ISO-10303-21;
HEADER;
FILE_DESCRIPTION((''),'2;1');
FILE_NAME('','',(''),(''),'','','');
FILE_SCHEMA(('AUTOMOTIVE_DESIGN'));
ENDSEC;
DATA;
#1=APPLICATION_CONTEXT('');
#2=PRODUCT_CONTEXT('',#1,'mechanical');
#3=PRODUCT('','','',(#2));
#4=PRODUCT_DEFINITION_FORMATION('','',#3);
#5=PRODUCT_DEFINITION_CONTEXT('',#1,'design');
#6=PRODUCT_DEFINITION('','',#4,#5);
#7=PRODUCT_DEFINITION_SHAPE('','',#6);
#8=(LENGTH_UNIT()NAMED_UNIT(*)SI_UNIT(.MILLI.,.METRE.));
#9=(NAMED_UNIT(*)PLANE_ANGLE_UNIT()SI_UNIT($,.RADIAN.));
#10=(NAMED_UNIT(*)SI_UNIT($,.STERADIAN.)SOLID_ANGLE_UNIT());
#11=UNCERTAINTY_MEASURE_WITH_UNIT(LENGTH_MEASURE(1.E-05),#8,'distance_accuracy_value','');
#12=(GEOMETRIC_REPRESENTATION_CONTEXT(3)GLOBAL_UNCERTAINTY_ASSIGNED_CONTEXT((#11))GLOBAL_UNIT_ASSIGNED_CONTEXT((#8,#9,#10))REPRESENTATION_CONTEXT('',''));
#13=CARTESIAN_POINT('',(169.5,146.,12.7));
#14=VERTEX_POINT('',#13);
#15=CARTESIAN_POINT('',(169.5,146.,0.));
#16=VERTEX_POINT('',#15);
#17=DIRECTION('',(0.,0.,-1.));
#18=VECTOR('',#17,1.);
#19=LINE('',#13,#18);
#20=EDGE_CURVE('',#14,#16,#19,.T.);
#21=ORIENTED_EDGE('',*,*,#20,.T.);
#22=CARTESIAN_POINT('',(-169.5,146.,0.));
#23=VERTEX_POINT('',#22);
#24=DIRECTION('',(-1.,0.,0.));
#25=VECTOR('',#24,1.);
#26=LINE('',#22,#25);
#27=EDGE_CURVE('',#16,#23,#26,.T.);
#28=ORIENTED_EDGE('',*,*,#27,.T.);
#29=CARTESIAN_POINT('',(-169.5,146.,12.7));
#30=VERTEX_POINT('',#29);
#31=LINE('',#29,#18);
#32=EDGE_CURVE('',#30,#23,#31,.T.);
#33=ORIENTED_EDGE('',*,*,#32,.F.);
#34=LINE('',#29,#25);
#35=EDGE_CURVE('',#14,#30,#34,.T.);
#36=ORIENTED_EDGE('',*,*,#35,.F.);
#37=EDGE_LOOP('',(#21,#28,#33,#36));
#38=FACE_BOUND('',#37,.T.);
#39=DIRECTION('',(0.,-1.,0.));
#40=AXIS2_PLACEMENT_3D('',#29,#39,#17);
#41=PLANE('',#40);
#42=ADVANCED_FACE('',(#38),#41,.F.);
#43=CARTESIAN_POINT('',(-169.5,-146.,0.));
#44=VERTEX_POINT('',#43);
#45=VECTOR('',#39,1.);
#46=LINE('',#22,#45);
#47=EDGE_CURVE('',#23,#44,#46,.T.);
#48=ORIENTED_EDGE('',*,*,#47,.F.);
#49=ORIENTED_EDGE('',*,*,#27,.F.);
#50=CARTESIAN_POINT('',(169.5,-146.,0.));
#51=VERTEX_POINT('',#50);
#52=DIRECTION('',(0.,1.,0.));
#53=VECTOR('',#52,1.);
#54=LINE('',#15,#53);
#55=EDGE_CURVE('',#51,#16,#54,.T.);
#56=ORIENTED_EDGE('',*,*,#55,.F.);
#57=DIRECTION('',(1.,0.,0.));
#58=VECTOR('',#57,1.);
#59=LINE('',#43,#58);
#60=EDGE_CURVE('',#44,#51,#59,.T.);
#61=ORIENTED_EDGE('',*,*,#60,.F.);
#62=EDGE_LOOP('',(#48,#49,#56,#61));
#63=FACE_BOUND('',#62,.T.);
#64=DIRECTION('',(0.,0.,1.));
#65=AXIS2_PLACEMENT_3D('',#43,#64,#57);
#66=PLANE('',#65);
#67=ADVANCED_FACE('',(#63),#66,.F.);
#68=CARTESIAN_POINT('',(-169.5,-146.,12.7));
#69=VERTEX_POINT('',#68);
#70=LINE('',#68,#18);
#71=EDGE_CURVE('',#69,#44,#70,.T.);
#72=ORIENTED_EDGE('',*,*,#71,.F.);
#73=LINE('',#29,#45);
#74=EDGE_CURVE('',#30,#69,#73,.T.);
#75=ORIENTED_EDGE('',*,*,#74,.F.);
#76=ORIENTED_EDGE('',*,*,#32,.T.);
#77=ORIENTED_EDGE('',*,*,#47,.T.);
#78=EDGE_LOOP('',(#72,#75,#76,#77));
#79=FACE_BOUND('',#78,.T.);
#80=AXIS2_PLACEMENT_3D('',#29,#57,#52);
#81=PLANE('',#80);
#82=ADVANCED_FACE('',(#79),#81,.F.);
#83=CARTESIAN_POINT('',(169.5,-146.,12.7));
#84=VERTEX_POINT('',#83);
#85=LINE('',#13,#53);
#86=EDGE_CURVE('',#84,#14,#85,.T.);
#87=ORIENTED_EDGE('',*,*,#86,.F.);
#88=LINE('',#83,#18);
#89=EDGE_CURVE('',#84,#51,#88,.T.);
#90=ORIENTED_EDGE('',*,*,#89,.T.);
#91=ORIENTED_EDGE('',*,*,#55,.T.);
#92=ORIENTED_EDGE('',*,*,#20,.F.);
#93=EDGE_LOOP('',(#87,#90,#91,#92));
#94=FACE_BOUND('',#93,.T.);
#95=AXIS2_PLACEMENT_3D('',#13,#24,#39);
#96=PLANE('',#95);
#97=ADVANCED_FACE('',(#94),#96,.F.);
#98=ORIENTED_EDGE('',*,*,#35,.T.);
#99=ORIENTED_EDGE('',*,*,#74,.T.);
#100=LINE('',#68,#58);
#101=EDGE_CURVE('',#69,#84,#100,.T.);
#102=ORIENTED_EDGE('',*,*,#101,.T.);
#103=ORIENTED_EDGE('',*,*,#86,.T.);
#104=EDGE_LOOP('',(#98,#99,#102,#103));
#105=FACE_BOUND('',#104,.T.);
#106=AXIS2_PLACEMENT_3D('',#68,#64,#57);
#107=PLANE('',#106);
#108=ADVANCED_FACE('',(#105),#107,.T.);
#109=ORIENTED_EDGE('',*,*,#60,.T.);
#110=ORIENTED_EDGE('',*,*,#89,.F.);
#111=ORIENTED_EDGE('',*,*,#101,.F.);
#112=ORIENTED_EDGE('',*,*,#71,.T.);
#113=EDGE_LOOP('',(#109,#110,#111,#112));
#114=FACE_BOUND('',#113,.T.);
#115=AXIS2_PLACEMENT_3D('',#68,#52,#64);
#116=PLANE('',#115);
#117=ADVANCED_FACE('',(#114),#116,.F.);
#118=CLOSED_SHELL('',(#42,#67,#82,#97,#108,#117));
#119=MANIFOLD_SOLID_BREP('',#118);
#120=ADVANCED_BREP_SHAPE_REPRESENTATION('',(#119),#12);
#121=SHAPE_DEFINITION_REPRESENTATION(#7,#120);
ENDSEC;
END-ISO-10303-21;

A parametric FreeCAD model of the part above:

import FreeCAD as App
import Part
import Sketcher

doc = App.newDocument("Part")
body = doc.addObject("PartDesign::Body", "Body")

# Sketch on XY plane
sketch1 = doc.addObject("Sketcher::SketchObject", "Sketch")
body.addObject(sketch1)
sketch1.AttachmentSupport = (doc.XY_Plane, [""])
sketch1.MapMode = "FlatFace"
sketch1.addGeometry([
    Part.LineSegment(App.Vector(-169.5, 146, 0), App.Vector(-169.5, -146, 0)),
    Part.LineSegment(App.Vector(-169.5, -146, 0), App.Vector(169.5, -146, 0)),
    Part.LineSegment(App.Vector(169.5, -146, 0), App.Vector(169.5, 146, 0)),
    Part.LineSegment(App.Vector(169.5, 146, 0), App.Vector(-169.5, 146, 0)),
], False)
sketch1.addConstraint([
    Sketcher.Constraint("Coincident", 0, 2, 1, 1),
    Sketcher.Constraint("Coincident", 1, 2, 2, 1),
    Sketcher.Constraint("Coincident", 2, 2, 3, 1),
    Sketcher.Constraint("Coincident", 3, 2, 0, 1),
    Sketcher.Constraint("Vertical", 0),
    Sketcher.Constraint("Horizontal", 1),
    Sketcher.Constraint("Vertical", 2),
    Sketcher.Constraint("Horizontal", 3),
    Sketcher.Constraint("Symmetric", 0, 2, 2, 2, -1, 1),
    Sketcher.Constraint("DistanceX", 1, 1, 1, 2, 339.0),
    Sketcher.Constraint("DistanceY", 0, 2, 0, 1, 292.0),
])
pad1 = doc.addObject("PartDesign::Pad", "Pad")
body.addObject(pad1)
pad1.Profile = sketch1
pad1.Length = 12.7

doc.recompute()
